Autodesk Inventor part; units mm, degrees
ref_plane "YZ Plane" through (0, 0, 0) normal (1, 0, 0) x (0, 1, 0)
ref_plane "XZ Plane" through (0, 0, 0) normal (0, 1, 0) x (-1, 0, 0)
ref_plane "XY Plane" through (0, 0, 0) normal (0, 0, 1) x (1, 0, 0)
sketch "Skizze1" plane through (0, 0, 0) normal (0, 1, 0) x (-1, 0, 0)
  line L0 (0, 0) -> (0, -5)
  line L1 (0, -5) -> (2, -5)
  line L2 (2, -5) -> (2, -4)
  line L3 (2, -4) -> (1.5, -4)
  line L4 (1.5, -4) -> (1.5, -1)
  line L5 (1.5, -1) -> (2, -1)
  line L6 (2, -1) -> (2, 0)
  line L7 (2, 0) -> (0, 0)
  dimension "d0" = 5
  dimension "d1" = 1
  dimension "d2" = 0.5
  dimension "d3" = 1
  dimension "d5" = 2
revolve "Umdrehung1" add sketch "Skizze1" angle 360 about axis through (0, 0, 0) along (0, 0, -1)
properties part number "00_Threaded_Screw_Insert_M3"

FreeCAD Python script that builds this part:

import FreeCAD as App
import Part
import Sketcher


def add_polygon(sketch, points):
    """Adds a closed chain of lines whose ends are joined by coincident constraints."""
    first, n = sketch.GeometryCount, len(points)
    for a, b in zip(points, points[1:] + points[:1]):
        sketch.addGeometry(Part.LineSegment(App.Vector(*a, 0), App.Vector(*b, 0)), False)
    for i in range(n):
        sketch.addConstraint(Sketcher.Constraint("Coincident", first + i, 2, first + (i + 1) % n, 1))

doc = App.newDocument("Part")
body = doc.addObject("PartDesign::Body", "Body")

# Sketch on XZ plane
sketch1 = doc.addObject("Sketcher::SketchObject", "Sketch")
body.addObject(sketch1)
sketch1.AttachmentSupport = (doc.XZ_Plane, [""])
sketch1.MapMode = "FlatFace"
add_polygon(sketch1, [(-2, 0), (0, 0), (0, -5), (-2, -5), (-2, -4), (-1.5, -4), (-1.5, -1), (-2, -1)])  # lines 0-7
sketch1.addConstraint([
    Sketcher.Constraint("Horizontal", 0),
    Sketcher.Constraint("Vertical", 1),
    Sketcher.Constraint("Horizontal", 2),
    Sketcher.Constraint("Vertical", 3),
    Sketcher.Constraint("Horizontal", 4),
    Sketcher.Constraint("Vertical", 5),
    Sketcher.Constraint("Horizontal", 6),
    Sketcher.Constraint("Vertical", 7),
    Sketcher.Constraint("Coincident", 0, 2, -1, 1),
    Sketcher.Constraint("Vertical", 3, 2, 6, 2),
    Sketcher.Constraint("Equal", 3, 7),
    Sketcher.Constraint("DistanceX", 0, 1, 0, 2, 2.0),
    Sketcher.Constraint("DistanceY", 1, 2, 1, 1, 5.0),
    Sketcher.Constraint("DistanceY", 3, 1, 3, 2, 1.0),
    Sketcher.Constraint("DistanceX", 4, 1, 4, 2, 0.5),
])
revolution = doc.addObject("PartDesign::Revolution", "Revolution")
body.addObject(revolution)
revolution.Profile = sketch1
revolution.ReferenceAxis = (sketch1, ["V_Axis"])
revolution.Angle = 360

doc.recompute()
